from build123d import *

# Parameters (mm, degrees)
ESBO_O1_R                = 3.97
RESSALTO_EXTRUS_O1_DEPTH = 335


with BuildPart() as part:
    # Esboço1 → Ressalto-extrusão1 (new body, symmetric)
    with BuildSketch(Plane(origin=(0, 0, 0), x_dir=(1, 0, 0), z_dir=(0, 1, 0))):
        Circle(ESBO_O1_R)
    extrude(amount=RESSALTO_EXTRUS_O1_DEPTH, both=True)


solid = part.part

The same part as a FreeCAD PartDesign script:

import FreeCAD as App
import Part
import Sketcher

V = App.Vector

doc = App.newDocument("Part")
params = doc.addObject("Spreadsheet::Sheet", "Params")
for row, (alias, value) in enumerate([
    ("sketch1_diameter", "7.94 mm"),
    ("pad1_length", "670 mm"),
], start=1):
    params.set(f"A{row}", alias)
    params.set(f"B{row}", "=" + value)
    params.setAlias(f"B{row}", alias)

body = doc.addObject("PartDesign::Body", "Body")

sketch1 = body.newObject("Sketcher::SketchObject", "Sketch")
sketch1.AttachmentSupport = (doc.getObject("XZ_Plane"), [""])
sketch1.MapMode = "FlatFace"
sketch1.addGeometry(Part.Circle(V(0, 0, 0), V(0, 0, 1), 4), False)
sketch1.addConstraint(Sketcher.Constraint("Coincident", 0, 3, -1, 1))
sketch1.addConstraint(Sketcher.Constraint("Diameter", 0, 7.94))
sketch1.setExpression("Constraints[1]", "Params.sketch1_diameter")
pad1 = body.newObject("PartDesign::Pad", "Pad")
pad1.Profile = sketch1
pad1.setExpression("Length", "Params.pad1_length")
pad1.Midplane = True

doc.recompute()
